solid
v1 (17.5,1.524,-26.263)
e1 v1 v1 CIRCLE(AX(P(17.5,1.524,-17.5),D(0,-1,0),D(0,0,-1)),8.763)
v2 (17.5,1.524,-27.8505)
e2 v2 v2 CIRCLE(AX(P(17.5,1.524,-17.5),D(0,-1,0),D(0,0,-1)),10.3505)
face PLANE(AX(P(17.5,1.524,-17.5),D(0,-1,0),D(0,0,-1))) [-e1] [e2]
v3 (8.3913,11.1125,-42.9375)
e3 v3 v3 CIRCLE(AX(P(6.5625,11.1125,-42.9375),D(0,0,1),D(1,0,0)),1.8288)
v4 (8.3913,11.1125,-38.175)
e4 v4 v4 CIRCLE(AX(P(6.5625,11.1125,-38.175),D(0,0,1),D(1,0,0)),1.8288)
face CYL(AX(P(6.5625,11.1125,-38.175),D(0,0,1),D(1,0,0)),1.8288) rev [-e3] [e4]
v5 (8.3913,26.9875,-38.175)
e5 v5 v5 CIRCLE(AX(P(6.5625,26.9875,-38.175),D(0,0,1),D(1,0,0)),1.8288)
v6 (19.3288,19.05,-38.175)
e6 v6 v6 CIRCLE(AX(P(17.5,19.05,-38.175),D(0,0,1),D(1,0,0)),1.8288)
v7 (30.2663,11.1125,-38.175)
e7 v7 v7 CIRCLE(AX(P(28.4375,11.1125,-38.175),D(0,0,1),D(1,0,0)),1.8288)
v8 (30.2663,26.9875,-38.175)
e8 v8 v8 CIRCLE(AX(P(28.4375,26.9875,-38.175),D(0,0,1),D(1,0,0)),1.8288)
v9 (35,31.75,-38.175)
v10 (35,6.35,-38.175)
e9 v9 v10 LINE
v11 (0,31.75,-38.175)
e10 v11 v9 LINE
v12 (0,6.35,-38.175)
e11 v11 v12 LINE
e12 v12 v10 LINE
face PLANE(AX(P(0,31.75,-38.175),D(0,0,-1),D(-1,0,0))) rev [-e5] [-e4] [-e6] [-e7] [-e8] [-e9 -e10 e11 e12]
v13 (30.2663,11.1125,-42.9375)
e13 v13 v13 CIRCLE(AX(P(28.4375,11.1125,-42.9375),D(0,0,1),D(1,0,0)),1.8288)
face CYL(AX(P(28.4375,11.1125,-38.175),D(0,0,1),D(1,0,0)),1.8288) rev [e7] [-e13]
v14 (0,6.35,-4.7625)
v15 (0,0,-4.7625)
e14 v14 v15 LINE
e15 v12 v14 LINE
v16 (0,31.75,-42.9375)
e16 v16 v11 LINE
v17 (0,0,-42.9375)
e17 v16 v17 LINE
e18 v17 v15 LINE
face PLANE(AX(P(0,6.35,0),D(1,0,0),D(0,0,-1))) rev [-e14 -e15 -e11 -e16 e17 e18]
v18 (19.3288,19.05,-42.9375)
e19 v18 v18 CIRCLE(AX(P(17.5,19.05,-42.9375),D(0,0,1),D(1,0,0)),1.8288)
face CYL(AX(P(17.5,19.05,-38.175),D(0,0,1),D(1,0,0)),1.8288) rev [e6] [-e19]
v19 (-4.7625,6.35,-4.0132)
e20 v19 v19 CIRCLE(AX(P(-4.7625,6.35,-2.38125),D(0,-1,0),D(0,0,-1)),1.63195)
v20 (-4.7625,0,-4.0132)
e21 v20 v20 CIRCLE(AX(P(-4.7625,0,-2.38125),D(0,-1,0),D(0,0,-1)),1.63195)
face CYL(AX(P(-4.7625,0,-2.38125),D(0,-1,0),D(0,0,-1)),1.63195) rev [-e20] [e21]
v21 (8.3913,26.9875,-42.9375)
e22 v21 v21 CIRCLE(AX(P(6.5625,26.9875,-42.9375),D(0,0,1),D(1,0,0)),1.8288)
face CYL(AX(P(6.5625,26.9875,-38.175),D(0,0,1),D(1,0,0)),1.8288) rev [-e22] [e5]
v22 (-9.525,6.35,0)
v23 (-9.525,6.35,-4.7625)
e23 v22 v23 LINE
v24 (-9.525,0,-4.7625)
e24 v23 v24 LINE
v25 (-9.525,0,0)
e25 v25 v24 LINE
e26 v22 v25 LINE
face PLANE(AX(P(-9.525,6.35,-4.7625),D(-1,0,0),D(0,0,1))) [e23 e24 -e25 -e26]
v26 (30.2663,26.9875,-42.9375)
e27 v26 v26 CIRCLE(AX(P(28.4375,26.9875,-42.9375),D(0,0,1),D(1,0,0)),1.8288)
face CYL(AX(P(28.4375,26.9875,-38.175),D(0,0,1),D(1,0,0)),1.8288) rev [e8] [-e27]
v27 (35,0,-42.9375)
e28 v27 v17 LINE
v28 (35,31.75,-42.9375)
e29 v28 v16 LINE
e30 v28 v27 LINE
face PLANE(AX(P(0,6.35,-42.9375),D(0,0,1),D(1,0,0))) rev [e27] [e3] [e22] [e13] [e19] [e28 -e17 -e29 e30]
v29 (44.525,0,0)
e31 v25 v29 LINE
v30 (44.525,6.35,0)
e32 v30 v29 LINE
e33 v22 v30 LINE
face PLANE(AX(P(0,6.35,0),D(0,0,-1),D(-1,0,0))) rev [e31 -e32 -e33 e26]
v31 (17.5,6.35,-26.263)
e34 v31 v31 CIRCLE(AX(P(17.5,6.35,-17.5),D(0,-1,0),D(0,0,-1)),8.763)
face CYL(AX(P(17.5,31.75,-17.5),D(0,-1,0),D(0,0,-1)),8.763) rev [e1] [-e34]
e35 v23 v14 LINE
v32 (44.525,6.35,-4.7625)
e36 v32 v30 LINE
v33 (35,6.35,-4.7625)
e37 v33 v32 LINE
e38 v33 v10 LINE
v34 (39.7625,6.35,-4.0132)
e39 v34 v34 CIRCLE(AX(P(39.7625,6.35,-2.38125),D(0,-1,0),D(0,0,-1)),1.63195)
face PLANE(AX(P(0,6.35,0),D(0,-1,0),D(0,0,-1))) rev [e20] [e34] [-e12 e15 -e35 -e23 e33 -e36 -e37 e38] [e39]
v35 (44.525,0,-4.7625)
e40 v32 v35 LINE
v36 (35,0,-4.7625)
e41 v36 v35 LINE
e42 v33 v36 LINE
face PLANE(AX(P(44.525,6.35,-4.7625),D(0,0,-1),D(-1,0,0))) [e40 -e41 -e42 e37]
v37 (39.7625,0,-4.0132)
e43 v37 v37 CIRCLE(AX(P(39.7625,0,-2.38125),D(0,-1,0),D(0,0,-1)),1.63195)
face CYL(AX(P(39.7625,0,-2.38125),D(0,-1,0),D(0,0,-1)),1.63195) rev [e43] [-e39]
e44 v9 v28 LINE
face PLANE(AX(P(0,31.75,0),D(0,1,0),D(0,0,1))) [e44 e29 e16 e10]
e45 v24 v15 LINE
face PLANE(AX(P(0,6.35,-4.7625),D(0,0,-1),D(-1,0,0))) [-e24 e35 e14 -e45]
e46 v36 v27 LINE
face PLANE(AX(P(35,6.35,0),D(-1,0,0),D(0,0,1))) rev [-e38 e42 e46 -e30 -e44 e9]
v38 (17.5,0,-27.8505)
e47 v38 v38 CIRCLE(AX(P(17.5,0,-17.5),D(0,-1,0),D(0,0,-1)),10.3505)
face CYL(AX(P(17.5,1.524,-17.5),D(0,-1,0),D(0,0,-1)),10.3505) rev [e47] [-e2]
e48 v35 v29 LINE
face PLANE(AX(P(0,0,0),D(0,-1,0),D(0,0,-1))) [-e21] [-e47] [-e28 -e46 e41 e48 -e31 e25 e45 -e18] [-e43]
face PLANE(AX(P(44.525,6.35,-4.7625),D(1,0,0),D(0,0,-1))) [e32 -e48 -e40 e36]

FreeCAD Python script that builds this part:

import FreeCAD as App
import Part
import Sketcher

V = App.Vector
Q = App.Units.Quantity


def add_polygon(sketch, points):
    """Adds a closed chain of lines whose ends are joined by coincident constraints."""
    first, n = sketch.GeometryCount, len(points)
    for a, b in zip(points, points[1:] + points[:1]):
        sketch.addGeometry(Part.LineSegment(App.Vector(*a, 0), App.Vector(*b, 0)), False)
    for i in range(n):
        sketch.addConstraint(Sketcher.Constraint("Coincident", first + i, 2, first + (i + 1) % n, 1))

doc = App.newDocument("Part")
body = doc.addObject("PartDesign::Body", "Body")

sketch1 = body.newObject("Sketcher::SketchObject", "Sketch")
sketch1.AttachmentSupport = (doc.getObject("XZ_Plane"), [""])
sketch1.MapMode = "FlatFace"
add_polygon(sketch1, [(0, -42.9375), (0, 0), (35, 0), (35, -42.9375)])
sketch1.addConstraint([
    Sketcher.Constraint("Vertical", 0),
    Sketcher.Constraint("Horizontal", 1),
    Sketcher.Constraint("Vertical", 2),
    Sketcher.Constraint("Horizontal", 3),
    Sketcher.Constraint("Coincident", 0, 2, -1, 1),
    Sketcher.Constraint("DistanceX", 1, 1, 1, 2, Q("35 mm")),
    Sketcher.Constraint("DistanceY", 0, 1, 0, 2, Q("42.9375 mm")),
])
pad1 = body.newObject("PartDesign::Pad", "Pad")
pad1.Profile = sketch1
pad1.Length = Q("0.25 in")
pad1.Reversed = True

sketch2 = body.newObject("Sketcher::SketchObject", "Sketch001")
sketch2.AttachmentSupport = (doc.getObject("XZ_Plane"), [""])
sketch2.MapMode = "FlatFace"
sketch2.AttachmentOffset = App.Placement(V(0, 0, -0.25 * 25.4), App.Rotation())
add_polygon(sketch2, [(0, -42.9375), (0, -38.175), (35, -38.175), (35, -42.9375)])
sketch2.addConstraint([
    Sketcher.Constraint("Vertical", 0),
    Sketcher.Constraint("Horizontal", 1),
    Sketcher.Constraint("Vertical", 2),
    Sketcher.Constraint("Horizontal", 3),
    Sketcher.Constraint("PointOnObject", 0, 2, -2),
    Sketcher.Constraint("DistanceY", 0, 1, 0, 2, Q("0.1875 in")),
    Sketcher.Constraint("DistanceX", 1, 1, 1, 2, Q("35 mm")),
    Sketcher.Constraint("DistanceY", 0, 2, -1, 1, Q("38.175 mm")),
])
pad2 = body.newObject("PartDesign::Pad", "Pad001")
pad2.Profile = sketch2
pad2.Length = Q("1 in")
pad2.Reversed = True

sketch3 = body.newObject("Sketcher::SketchObject", "Sketch002")
sketch3.AttachmentSupport = (doc.getObject("XZ_Plane"), [""])
sketch3.MapMode = "FlatFace"
sketch3.addGeometry(Part.Circle(V(17.5, -17.5, 0), V(0, 0, 1), 8.763), False)
sketch3.addConstraint([
    Sketcher.Constraint("Diameter", 0, Q("0.69 in")),
    Sketcher.Constraint("DistanceX", -1, 1, 0, 3, Q("17.5 mm")),
    Sketcher.Constraint("DistanceY", 0, 3, -1, 1, Q("17.5 mm")),
])
pocket1 = body.newObject("PartDesign::Pocket", "Pocket")
pocket1.Profile = sketch3
pocket1.Type = "ThroughAll"

sketch4 = body.newObject("Sketcher::SketchObject", "Sketch003")
sketch4.AttachmentSupport = (doc.getObject("XY_Plane"), [""])
sketch4.MapMode = "FlatFace"
sketch4.AttachmentOffset = App.Placement(V(0, 0, -38.175), App.Rotation())
sketch4.addGeometry([
    Part.Circle(V(6.5625, 26.9875, 0), V(0, 0, 1), 1.8288),
    Part.Circle(V(17.5, 19.05, 0), V(0, 0, 1), 1.8288),
    Part.Circle(V(6.5625, 11.1125, 0), V(0, 0, 1), 1.8288),
    Part.Circle(V(28.4375, 26.9875, 0), V(0, 0, 1), 1.8288),
    Part.Circle(V(28.4375, 11.1125, 0), V(0, 0, 1), 1.8288),
], False)
sketch4.addConstraint([
    Sketcher.Constraint("Equal", 0, 1),
    Sketcher.Constraint("Equal", 1, 2),
    Sketcher.Constraint("Equal", 2, 3),
    Sketcher.Constraint("Equal", 3, 4),
    Sketcher.Constraint("Horizontal", 0, 3, 3, 3),
    Sketcher.Constraint("Horizontal", 2, 3, 4, 3),
    Sketcher.Constraint("Vertical", 0, 3, 2, 3),
    Sketcher.Constraint("Vertical", 3, 3, 4, 3),
    Sketcher.Constraint("Diameter", 0, Q("0.144 in")),
    Sketcher.Constraint("DistanceY", -1, 1, 1, 3, Q("0.75 in")),
    Sketcher.Constraint("DistanceY", -1, 1, 0, 3, Q("1.0625 in")),
    Sketcher.Constraint("DistanceY", -1, 1, 2, 3, Q("0.4375 in")),
    Sketcher.Constraint("DistanceX", -1, 1, 0, 3, Q("6.5625 mm")),
    Sketcher.Constraint("DistanceX", -1, 1, 1, 3, Q("17.5 mm")),
    Sketcher.Constraint("DistanceX", -1, 1, 3, 3, Q("28.4375 mm")),
])
doc.recompute()
hole = body.newObject("PartDesign::Hole", "Hole")
hole.Profile = sketch4
hole.ThreadType = "None"
hole.Diameter = Q("0.144 in")
hole.DepthType = "ThroughAll"

sketch5 = body.newObject("Sketcher::SketchObject", "Sketch004")
sketch5.AttachmentSupport = (doc.getObject("XZ_Plane"), [""])
sketch5.MapMode = "FlatFace"
sketch5.addGeometry([
    Part.Circle(V(17.5, -17.5, 0), V(0, 0, 1), 10.3505),
    Part.Circle(V(17.5, -17.5, 0), V(0, 0, 1), 8.763),
], False)
sketch5.addConstraint([
    Sketcher.Constraint("Coincident", 1, 3, 0, 3),
    Sketcher.Constraint("Diameter", 1, Q("0.69 in")),
    Sketcher.Constraint("Diameter", 0, Q("0.815 in")),
    Sketcher.Constraint("DistanceX", -1, 1, 0, 3, Q("17.5 mm")),
    Sketcher.Constraint("DistanceY", 0, 3, -1, 1, Q("17.5 mm")),
])
pocket2 = body.newObject("PartDesign::Pocket", "Pocket001")
pocket2.Profile = sketch5
pocket2.Length = Q("0.06 in")

sketch6 = body.newObject("Sketcher::SketchObject", "Sketch005")
sketch6.AttachmentSupport = (doc.getObject("XZ_Plane"), [""])
sketch6.MapMode = "FlatFace"
add_polygon(sketch6, [(35, 0), (35, -4.7625), (44.525, -4.7625), (44.525, 0)])
add_polygon(sketch6, [(-9.525, 0), (-9.525, -4.7625), (0, -4.7625), (0, 0)])
sketch6.addConstraint([
    Sketcher.Constraint("Vertical", 0),
    Sketcher.Constraint("Horizontal", 1),
    Sketcher.Constraint("Vertical", 2),
    Sketcher.Constraint("Horizontal", 3),
    Sketcher.Constraint("Vertical", 4),
    Sketcher.Constraint("Horizontal", 5),
    Sketcher.Constraint("Vertical", 6),
    Sketcher.Constraint("Horizontal", 7),
    Sketcher.Constraint("Coincident", 6, 2, -1, 1),
    Sketcher.Constraint("PointOnObject", 2, 2, -1),
    Sketcher.Constraint("Horizontal", 1, 2, 4, 2),
    Sketcher.Constraint("Equal", 3, 5),
    Sketcher.Constraint("DistanceX", 1, 1, 1, 2, Q("0.375 in")),
    Sketcher.Constraint("DistanceY", 0, 2, 0, 1, Q("0.1875 in")),
    Sketcher.Constraint("DistanceX", -1, 1, 0, 2, Q("35 mm")),
])
pad3 = body.newObject("PartDesign::Pad", "Pad002")
pad3.Profile = sketch6
pad3.Length = Q("0.25 in")
pad3.Reversed = True

sketch7 = body.newObject("Sketcher::SketchObject", "Sketch006")
sketch7.AttachmentSupport = (doc.getObject("XZ_Plane"), [""])
sketch7.MapMode = "FlatFace"
sketch7.addGeometry([
    Part.Circle(V(-4.7625, -2.38125, 0), V(0, 0, 1), 1.63195),
    Part.Circle(V(39.7625, -2.38125, 0), V(0, 0, 1), 1.63195),
], False)
sketch7.addConstraint([
    Sketcher.Constraint("Equal", 0, 1),
    Sketcher.Constraint("Horizontal", 0, 3, 1, 3),
    Sketcher.Constraint("Diameter", 0, Q("0.1285 in")),
    Sketcher.Constraint("DistanceX", 0, 3, -1, 1, Q("0.1875 in")),
    Sketcher.Constraint("DistanceY", 0, 3, -1, 1, Q("0.09375 in")),
    Sketcher.Constraint("DistanceX", -1, 1, 1, 3, Q("39.7625 mm")),
])
doc.recompute()
hole2 = body.newObject("PartDesign::Hole", "Hole001")
hole2.Profile = sketch7
hole2.ThreadType = "None"
hole2.Diameter = Q("0.1285 in")
hole2.DepthType = "Dimension"
hole2.Depth = Q("0.4 in")
hole2.DrillPoint = "Angled"
hole2.DrillPointAngle = 118

doc.recompute()
